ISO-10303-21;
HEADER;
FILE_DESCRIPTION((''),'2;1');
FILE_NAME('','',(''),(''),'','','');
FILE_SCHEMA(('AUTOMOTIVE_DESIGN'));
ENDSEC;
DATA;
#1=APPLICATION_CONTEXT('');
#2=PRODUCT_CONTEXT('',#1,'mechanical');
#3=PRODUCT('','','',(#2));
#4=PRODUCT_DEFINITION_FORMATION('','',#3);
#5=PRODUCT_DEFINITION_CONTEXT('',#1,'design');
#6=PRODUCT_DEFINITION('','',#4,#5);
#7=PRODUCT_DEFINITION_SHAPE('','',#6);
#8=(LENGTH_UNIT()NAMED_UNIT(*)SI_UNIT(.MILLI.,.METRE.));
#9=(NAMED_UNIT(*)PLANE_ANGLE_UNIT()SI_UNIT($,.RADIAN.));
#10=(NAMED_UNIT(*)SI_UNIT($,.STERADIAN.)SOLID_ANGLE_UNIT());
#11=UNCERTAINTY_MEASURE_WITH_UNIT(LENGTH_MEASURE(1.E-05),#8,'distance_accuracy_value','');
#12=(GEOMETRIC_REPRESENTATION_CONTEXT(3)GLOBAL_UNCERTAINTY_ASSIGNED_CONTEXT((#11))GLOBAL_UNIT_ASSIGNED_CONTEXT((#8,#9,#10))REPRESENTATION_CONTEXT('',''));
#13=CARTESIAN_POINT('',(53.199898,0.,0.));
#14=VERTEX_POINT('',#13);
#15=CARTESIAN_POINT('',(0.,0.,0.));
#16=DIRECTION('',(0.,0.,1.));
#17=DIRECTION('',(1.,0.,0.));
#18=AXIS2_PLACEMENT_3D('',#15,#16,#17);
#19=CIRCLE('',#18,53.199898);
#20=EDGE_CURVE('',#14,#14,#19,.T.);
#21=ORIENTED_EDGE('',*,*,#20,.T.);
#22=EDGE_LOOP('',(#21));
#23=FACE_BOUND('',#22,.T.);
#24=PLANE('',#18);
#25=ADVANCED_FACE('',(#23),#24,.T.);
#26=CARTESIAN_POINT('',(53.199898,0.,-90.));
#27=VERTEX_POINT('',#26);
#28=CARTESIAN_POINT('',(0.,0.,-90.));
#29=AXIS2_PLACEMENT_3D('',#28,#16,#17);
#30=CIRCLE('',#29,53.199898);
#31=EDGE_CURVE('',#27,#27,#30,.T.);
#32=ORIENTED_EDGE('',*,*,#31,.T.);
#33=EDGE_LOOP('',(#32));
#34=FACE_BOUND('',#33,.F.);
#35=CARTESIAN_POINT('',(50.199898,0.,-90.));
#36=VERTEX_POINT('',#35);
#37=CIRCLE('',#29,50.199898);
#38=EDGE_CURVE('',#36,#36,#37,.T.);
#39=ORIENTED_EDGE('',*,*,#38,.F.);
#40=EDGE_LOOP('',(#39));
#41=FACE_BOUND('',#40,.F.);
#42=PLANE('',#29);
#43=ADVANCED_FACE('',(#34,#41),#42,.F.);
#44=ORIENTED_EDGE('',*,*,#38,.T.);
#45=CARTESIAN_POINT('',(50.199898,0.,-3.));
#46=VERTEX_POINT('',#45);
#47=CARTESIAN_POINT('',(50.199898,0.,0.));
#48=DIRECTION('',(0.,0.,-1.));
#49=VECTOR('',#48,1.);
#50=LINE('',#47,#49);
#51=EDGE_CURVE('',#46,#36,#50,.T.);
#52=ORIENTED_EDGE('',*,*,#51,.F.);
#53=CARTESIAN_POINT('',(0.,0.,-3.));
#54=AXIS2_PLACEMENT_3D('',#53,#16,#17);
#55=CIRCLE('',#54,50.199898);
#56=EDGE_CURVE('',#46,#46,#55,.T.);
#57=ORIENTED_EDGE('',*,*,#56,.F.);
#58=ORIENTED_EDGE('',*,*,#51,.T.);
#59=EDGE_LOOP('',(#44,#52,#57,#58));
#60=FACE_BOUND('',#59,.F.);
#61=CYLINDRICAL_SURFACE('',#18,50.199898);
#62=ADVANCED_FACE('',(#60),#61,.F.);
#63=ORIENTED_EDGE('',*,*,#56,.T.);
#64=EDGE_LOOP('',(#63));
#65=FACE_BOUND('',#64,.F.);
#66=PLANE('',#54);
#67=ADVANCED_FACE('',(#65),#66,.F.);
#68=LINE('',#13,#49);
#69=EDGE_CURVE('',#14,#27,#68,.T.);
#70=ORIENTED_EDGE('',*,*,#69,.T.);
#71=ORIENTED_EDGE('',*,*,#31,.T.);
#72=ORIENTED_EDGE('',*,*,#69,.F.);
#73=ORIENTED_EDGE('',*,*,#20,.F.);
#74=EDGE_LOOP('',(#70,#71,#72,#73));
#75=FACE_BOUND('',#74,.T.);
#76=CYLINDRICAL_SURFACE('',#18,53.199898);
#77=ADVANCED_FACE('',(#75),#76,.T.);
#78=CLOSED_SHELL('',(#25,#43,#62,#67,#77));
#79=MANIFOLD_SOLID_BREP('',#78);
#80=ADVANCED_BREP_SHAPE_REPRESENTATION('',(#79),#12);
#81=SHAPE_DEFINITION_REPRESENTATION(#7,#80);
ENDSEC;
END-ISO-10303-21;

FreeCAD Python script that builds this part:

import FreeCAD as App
import Part
import Sketcher

doc = App.newDocument("Part")
body = doc.addObject("PartDesign::Body", "Body")

# Sketch on XY plane
sketch1 = body.newObject("Sketcher::SketchObject", "Sketch")
sketch1.AttachmentSupport = (doc.getObject("XY_Plane"), [""])
sketch1.MapMode = "FlatFace"
sketch1.addGeometry(Part.Circle(App.Vector(0, 0, 0), App.Vector(0, 0, 1), 50), False)
sketch1.addConstraint(Sketcher.Constraint("Coincident", 0, 3, -1, 1))
sketch1.addConstraint(Sketcher.Constraint("Diameter", 0, 100.399796))
pad1 = body.newObject("PartDesign::Pad", "Pad")
pad1.Profile = sketch1
pad1.Length = 3
pad1.Reversed = True

# Sketch on XY plane
sketch2 = body.newObject("Sketcher::SketchObject", "Sketch001")
sketch2.AttachmentSupport = (doc.getObject("XY_Plane"), [""])
sketch2.MapMode = "FlatFace"
sketch2.addGeometry(Part.Circle(App.Vector(0, 0, 0), App.Vector(0, 0, 1), 53), False)
sketch2.addGeometry(Part.Circle(App.Vector(0, 0, 0), App.Vector(0, 0, 1), 50), False)
sketch2.addConstraint(Sketcher.Constraint("Coincident", 0, 3, -1, 1))
sketch2.addConstraint(Sketcher.Constraint("Coincident", 1, 3, -1, 1))
sketch2.addConstraint(Sketcher.Constraint("Diameter", 0, 106.399796))
sketch2.addConstraint(Sketcher.Constraint("Diameter", 1, 100.399796))
pad2 = body.newObject("PartDesign::Pad", "Pad001")
pad2.Profile = sketch2
pad2.Length = 90
pad2.Reversed = True

doc.recompute()
